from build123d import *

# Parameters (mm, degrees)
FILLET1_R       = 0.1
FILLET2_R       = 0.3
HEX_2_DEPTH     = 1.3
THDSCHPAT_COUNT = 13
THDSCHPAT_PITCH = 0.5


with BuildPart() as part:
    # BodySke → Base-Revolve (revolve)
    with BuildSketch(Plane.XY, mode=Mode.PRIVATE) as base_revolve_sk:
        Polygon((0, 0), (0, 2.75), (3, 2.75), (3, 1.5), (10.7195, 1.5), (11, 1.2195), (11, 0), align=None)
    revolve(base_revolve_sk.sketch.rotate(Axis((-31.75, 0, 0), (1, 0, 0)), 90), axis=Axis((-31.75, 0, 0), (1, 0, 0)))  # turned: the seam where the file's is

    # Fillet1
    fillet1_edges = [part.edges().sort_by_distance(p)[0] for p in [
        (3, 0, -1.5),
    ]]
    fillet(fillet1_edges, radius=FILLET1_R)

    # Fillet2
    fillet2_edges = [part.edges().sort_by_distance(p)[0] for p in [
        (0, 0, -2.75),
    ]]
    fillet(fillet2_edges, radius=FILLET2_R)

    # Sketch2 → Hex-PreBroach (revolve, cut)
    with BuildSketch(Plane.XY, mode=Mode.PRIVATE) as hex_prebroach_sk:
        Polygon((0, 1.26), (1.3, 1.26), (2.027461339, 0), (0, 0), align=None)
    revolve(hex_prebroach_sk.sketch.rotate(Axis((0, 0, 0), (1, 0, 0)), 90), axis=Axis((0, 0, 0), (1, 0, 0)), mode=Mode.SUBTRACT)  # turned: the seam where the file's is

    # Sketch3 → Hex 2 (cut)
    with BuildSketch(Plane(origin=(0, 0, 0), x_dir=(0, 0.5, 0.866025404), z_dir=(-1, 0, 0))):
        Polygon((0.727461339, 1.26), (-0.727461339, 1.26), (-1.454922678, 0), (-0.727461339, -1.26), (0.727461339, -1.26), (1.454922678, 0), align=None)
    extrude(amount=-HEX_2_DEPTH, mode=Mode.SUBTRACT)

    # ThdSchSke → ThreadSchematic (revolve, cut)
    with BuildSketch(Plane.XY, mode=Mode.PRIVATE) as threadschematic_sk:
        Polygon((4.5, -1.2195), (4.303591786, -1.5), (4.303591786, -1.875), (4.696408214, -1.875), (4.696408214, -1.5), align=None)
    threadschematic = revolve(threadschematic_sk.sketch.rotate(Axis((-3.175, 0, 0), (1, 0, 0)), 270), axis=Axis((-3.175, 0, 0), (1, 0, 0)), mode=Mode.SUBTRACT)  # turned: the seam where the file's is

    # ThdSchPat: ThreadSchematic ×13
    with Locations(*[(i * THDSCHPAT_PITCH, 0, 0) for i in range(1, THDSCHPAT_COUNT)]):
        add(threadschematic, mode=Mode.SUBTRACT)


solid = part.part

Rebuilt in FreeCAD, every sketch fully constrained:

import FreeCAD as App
import Part
import Sketcher

V = App.Vector
Q = App.Units.Quantity


def edges_at(feature, points):
    """Names of the edges that pass closest to the given points."""
    edges = feature.Shape.Edges
    near = lambda p: min(range(len(edges)), key=lambda i: edges[i].distToShape(Part.Vertex(*p))[0])
    return sorted({f"Edge{near(p) + 1}" for p in points})

doc = App.newDocument("Part")
body = doc.addObject("PartDesign::Body", "Body")

sketch1 = doc.addObject("Sketcher::SketchObject", "Sketch")
body.addObject(sketch1)
sketch1.AttachmentSupport = (doc.XY_Plane, [""])
sketch1.MapMode = "FlatFace"
sketch1.addGeometry([
    Part.LineSegment(V(0, 2.75, 0), V(0, 0, 0)),
    Part.LineSegment(V(0, 0, 0), V(11, 0, 0)),
    Part.LineSegment(V(11, 0, 0), V(11, 1.22, 0)),
    Part.LineSegment(V(11, 1.22, 0), V(10.72, 1.5, 0)),
    Part.LineSegment(V(10.72, 1.5, 0), V(3, 1.5, 0)),
    Part.LineSegment(V(3, 1.5, 0), V(3, 2.75, 0)),
    Part.LineSegment(V(3, 2.75, 0), V(0, 2.75, 0)),
], False)
sketch1.addConstraint([
    Sketcher.Constraint("Coincident", 0, 2, 1, 1),
    Sketcher.Constraint("Coincident", 1, 2, 2, 1),
    Sketcher.Constraint("Coincident", 2, 2, 3, 1),
    Sketcher.Constraint("Coincident", 3, 2, 4, 1),
    Sketcher.Constraint("Coincident", 4, 2, 5, 1),
    Sketcher.Constraint("Coincident", 5, 2, 6, 1),
    Sketcher.Constraint("Coincident", 6, 2, 0, 1),
    Sketcher.Constraint("Vertical", 0),
    Sketcher.Constraint("Horizontal", 1),
    Sketcher.Constraint("Vertical", 2),
    Sketcher.Constraint("Horizontal", 4),
    Sketcher.Constraint("Vertical", 5),
    Sketcher.Constraint("Horizontal", 6),
    Sketcher.Constraint("Coincident", 0, 2, -1, 1),
    Sketcher.Constraint("DistanceX", 1, 1, 1, 2, Q("11 mm")),
    Sketcher.Constraint("DistanceX", 6, 2, 6, 1, Q("3 mm")),
    Sketcher.Constraint("Angle", 3, Q("135 deg")),
    Sketcher.Constraint("DistanceY", 0, 2, 0, 1, Q("2.75 mm")),
    Sketcher.Constraint("DistanceY", 5, 1, 5, 2, Q("1.25 mm")),
    Sketcher.Constraint("DistanceX", 4, 2, 4, 1, Q("7.7195 mm")),
])
revolution = doc.addObject("PartDesign::Revolution", "Revolution")
body.addObject(revolution)
revolution.Profile = sketch1
revolution.ReferenceAxis = (sketch1, ["H_Axis"])
revolution.Angle = 360
doc.recompute()

fillet = doc.addObject("PartDesign::Fillet", "Fillet")
body.addObject(fillet)
fillet.Base = (revolution, edges_at(revolution, [(3, 0, -1.5)]))
fillet.Radius = 0.1
doc.recompute()

fillet2 = doc.addObject("PartDesign::Fillet", "Fillet001")
body.addObject(fillet2)
fillet2.Base = (fillet, edges_at(fillet, [(0, 0, -2.75)]))
fillet2.Radius = 0.3

sketch2 = doc.addObject("Sketcher::SketchObject", "Sketch001")
body.addObject(sketch2)
sketch2.AttachmentSupport = (doc.XY_Plane, [""])
sketch2.MapMode = "FlatFace"
sketch2.addGeometry([
    Part.LineSegment(V(1.3, 1.3, 0), V(0, 1.3, 0)),
    Part.LineSegment(V(0, 1.3, 0), V(0, 0, 0)),
    Part.LineSegment(V(0, 0, 0), V(2, 0, 0)),
    Part.LineSegment(V(2, 0, 0), V(1.3, 1.3, 0)),
], False)
sketch2.addConstraint([
    Sketcher.Constraint("Coincident", 0, 2, 1, 1),
    Sketcher.Constraint("Coincident", 1, 2, 2, 1),
    Sketcher.Constraint("Coincident", 2, 2, 3, 1),
    Sketcher.Constraint("Coincident", 3, 2, 0, 1),
    Sketcher.Constraint("Horizontal", 0),
    Sketcher.Constraint("Vertical", 1),
    Sketcher.Constraint("Horizontal", 2),
    Sketcher.Constraint("Coincident", 1, 2, -1, 1),
    Sketcher.Constraint("Angle", 3, Q("120 deg")),
    Sketcher.Constraint("DistanceX", 0, 2, 0, 1, Q("1.3 mm")),
    Sketcher.Constraint("DistanceY", 1, 2, 1, 1, Q("1.26 mm")),
])
groove = doc.addObject("PartDesign::Groove", "Groove")
body.addObject(groove)
groove.Profile = sketch2
groove.ReferenceAxis = (sketch2, ["H_Axis"])
groove.Angle = 360

sketch3 = doc.addObject("Sketcher::SketchObject", "Sketch002")
body.addObject(sketch3)
sketch3.AttachmentSupport = (doc.YZ_Plane, [""])
sketch3.MapMode = "FlatFace"
sketch3.addGeometry([
    Part.LineSegment(V(1.5, 0, 0), V(0.7, -1.3, 0)),
    Part.LineSegment(V(0.7, -1.3, 0), V(-0.7, -1.3, 0)),
    Part.LineSegment(V(-0.7, -1.3, 0), V(-1.5, 0, 0)),
    Part.LineSegment(V(-1.5, 0, 0), V(-0.7, 1.3, 0)),
    Part.LineSegment(V(-0.7, 1.3, 0), V(0.7, 1.3, 0)),
    Part.LineSegment(V(0.7, 1.3, 0), V(1.5, 0, 0)),
], False)
sketch3.addConstraint([
    Sketcher.Constraint("Coincident", 0, 2, 1, 1),
    Sketcher.Constraint("Coincident", 1, 2, 2, 1),
    Sketcher.Constraint("Coincident", 2, 2, 3, 1),
    Sketcher.Constraint("Coincident", 3, 2, 4, 1),
    Sketcher.Constraint("Coincident", 4, 2, 5, 1),
    Sketcher.Constraint("Coincident", 5, 2, 0, 1),
    Sketcher.Constraint("Horizontal", 1),
    Sketcher.Constraint("Horizontal", 4),
    Sketcher.Constraint("Symmetric", 0, 2, 3, 2, -1, 1),
    Sketcher.Constraint("Symmetric", 2, 2, 5, 2, -1, 1),
    Sketcher.Constraint("PointOnObject", 2, 2, -1),
    Sketcher.Constraint("Parallel", 2, 5),
    Sketcher.Constraint("Vertical", 1, 2, 3, 2),
    Sketcher.Constraint("Angle", 0, Q("-120 deg")),
    Sketcher.Constraint("DistanceY", 0, 2, -1, 1, Q("1.26 mm")),
    Sketcher.Constraint("DistanceX", 1, 2, 1, 1, Q("1.454923 mm")),
])
pocket1 = doc.addObject("PartDesign::Pocket", "Pocket")
body.addObject(pocket1)
pocket1.Profile = sketch3
pocket1.Length = 1.3
pocket1.Reversed = True

sketch4 = doc.addObject("Sketcher::SketchObject", "Sketch003")
body.addObject(sketch4)
sketch4.AttachmentSupport = (doc.XY_Plane, [""])
sketch4.MapMode = "FlatFace"
sketch4.addGeometry([
    Part.LineSegment(V(4.5, -1.22, 0), V(4.3, -1.5, 0)),
    Part.LineSegment(V(4.3, -1.5, 0), V(4.3, -1.88, 0)),
    Part.LineSegment(V(4.3, -1.88, 0), V(4.7, -1.88, 0)),
    Part.LineSegment(V(4.7, -1.88, 0), V(4.7, -1.5, 0)),
    Part.LineSegment(V(4.7, -1.5, 0), V(4.5, -1.22, 0)),
], False)
sketch4.addConstraint([
    Sketcher.Constraint("Coincident", 0, 2, 1, 1),
    Sketcher.Constraint("Coincident", 1, 2, 2, 1),
    Sketcher.Constraint("Coincident", 2, 2, 3, 1),
    Sketcher.Constraint("Coincident", 3, 2, 4, 1),
    Sketcher.Constraint("Coincident", 4, 2, 0, 1),
    Sketcher.Constraint("Vertical", 1),
    Sketcher.Constraint("Horizontal", 2),
    Sketcher.Constraint("Vertical", 3),
    Sketcher.Constraint("Horizontal", 0, 2, 3, 2),
    Sketcher.Constraint("Equal", 0, 4),
    Sketcher.Constraint("Angle", 0, Q("-125 deg")),
    Sketcher.Constraint("DistanceY", 0, 2, -1, 1, Q("1.5 mm")),
    Sketcher.Constraint("DistanceX", -1, 1, 4, 2, Q("4.5 mm")),
    Sketcher.Constraint("DistanceY", 1, 2, 1, 1, Q("0.375 mm")),
    Sketcher.Constraint("DistanceY", 4, 2, -1, 1, Q("1.2195 mm")),
])
groove2 = doc.addObject("PartDesign::Groove", "Groove001")
body.addObject(groove2)
groove2.Profile = sketch4
groove2.ReferenceAxis = (sketch4, ["H_Axis"])
groove2.Angle = 360
doc.recompute()

linearpattern = doc.addObject("PartDesign::LinearPattern", "LinearPattern")
body.addObject(linearpattern)
linearpattern.Originals = [groove2]
linearpattern.Direction = (doc.X_Axis, [""])
linearpattern.Mode = "offset"
linearpattern.Offset = 0.5
linearpattern.Occurrences = 13
body.Tip = linearpattern

doc.recompute()
